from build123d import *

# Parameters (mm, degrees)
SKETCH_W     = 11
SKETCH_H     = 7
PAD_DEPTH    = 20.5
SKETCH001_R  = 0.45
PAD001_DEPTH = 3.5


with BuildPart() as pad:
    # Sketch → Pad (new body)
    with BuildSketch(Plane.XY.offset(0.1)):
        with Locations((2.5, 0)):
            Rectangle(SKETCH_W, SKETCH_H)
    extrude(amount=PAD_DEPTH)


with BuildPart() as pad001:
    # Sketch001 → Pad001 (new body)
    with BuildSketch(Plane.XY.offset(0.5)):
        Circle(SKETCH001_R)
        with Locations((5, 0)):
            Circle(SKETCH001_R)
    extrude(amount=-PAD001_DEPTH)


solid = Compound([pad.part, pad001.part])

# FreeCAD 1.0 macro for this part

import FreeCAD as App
import Part
import Sketcher


def add_polygon(sketch, points):
    """Adds a closed chain of lines whose ends are joined by coincident constraints."""
    first, n = sketch.GeometryCount, len(points)
    for a, b in zip(points, points[1:] + points[:1]):
        sketch.addGeometry(Part.LineSegment(App.Vector(*a, 0), App.Vector(*b, 0)), False)
    for i in range(n):
        sketch.addConstraint(Sketcher.Constraint("Coincident", first + i, 2, first + (i + 1) % n, 1))

doc = App.newDocument("Part")
body = doc.addObject("PartDesign::Body", "Body")

# Sketch on XY plane
sketch1 = body.newObject("Sketcher::SketchObject", "Sketch")
sketch1.AttachmentSupport = (doc.getObject("XY_Plane"), [""])
sketch1.MapMode = "FlatFace"
sketch1.AttachmentOffset = App.Placement(App.Vector(0, 0, 0.1), App.Rotation())
add_polygon(sketch1, [(-3, 4), (-3, -4), (8, -4), (8, 4)])  # lines 0-3
sketch1.addConstraint([
    Sketcher.Constraint("Vertical", 0),
    Sketcher.Constraint("Horizontal", 1),
    Sketcher.Constraint("Vertical", 2),
    Sketcher.Constraint("Horizontal", 3),
    Sketcher.Constraint("DistanceX", 1, 1, 1, 2, 11.0),
    Sketcher.Constraint("DistanceY", 0, 2, 0, 1, 7.0),
    Sketcher.Constraint("DistanceX", 0, 2, -1, 1, 3.0),
    Sketcher.Constraint("DistanceY", 0, 2, -1, 1, 3.5),
])
pad1 = body.newObject("PartDesign::Pad", "Pad")
pad1.Profile = sketch1
pad1.Length = 20.5
body2 = doc.addObject("PartDesign::Body", "Body001")
body2.AllowCompound = True

# Sketch on XY plane
sketch2 = body2.newObject("Sketcher::SketchObject", "Sketch001")
sketch2.AttachmentSupport = (doc.getObject("XY_Plane001"), [""])
sketch2.MapMode = "FlatFace"
sketch2.AttachmentOffset = App.Placement(App.Vector(0, 0, 0.5), App.Rotation())
sketch2.addGeometry([
    Part.Circle(App.Vector(0, 0, 0), App.Vector(0, 0, 1), 0.45),
    Part.Circle(App.Vector(5, 0, 0), App.Vector(0, 0, 1), 0.45),
], False)
sketch2.addConstraint([
    Sketcher.Constraint("Coincident", 0, 3, -1, 1),
    Sketcher.Constraint("Equal", 0, 1),
    Sketcher.Constraint("PointOnObject", 1, 3, -1),
    Sketcher.Constraint("Diameter", 0, 0.9),
    Sketcher.Constraint("DistanceX", -1, 1, 1, 3, 5.0),
])
pad2 = body2.newObject("PartDesign::Pad", "Pad001")
pad2.Profile = sketch2
pad2.Length = 3.5
pad2.Reversed = True

doc.recompute()
